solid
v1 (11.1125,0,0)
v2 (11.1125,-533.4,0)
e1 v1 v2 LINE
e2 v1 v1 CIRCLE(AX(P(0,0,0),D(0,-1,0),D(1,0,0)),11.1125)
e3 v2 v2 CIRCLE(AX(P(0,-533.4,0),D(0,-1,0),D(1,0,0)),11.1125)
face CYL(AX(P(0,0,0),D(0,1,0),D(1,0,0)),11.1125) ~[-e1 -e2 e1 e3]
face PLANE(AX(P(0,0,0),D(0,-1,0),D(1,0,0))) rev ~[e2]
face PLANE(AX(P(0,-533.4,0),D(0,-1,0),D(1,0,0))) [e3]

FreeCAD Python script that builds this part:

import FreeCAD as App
import Part
import Sketcher

V = App.Vector
Q = App.Units.Quantity

doc = App.newDocument("Part")
params = doc.addObject("Spreadsheet::Sheet", "Params")
for row, (alias, value) in enumerate([
    ("sketch1_diameter", "0.875 in"),
    ("pad1_length", "21 in"),
], start=1):
    params.set(f"A{row}", alias)
    params.set(f"B{row}", "=" + value)
    params.setAlias(f"B{row}", alias)

body = doc.addObject("PartDesign::Body", "Body")

# Sketch on XZ plane
sketch1 = body.newObject("Sketcher::SketchObject", "Sketch")
sketch1.AttachmentSupport = (doc.getObject("XZ_Plane"), [""])
sketch1.MapMode = "FlatFace"
sketch1.addGeometry(Part.Circle(V(0, 0, 0), V(0, 0, 1), 11), False)
sketch1.addConstraint(Sketcher.Constraint("Coincident", 0, 3, -1, 1))
sketch1.addConstraint(Sketcher.Constraint("Diameter", 0, Q("0.875 in")))
sketch1.setExpression("Constraints[1]", "Params.sketch1_diameter")
pad1 = body.newObject("PartDesign::Pad", "Pad")
pad1.Profile = sketch1
pad1.setExpression("Length", "Params.pad1_length")

doc.recompute()
